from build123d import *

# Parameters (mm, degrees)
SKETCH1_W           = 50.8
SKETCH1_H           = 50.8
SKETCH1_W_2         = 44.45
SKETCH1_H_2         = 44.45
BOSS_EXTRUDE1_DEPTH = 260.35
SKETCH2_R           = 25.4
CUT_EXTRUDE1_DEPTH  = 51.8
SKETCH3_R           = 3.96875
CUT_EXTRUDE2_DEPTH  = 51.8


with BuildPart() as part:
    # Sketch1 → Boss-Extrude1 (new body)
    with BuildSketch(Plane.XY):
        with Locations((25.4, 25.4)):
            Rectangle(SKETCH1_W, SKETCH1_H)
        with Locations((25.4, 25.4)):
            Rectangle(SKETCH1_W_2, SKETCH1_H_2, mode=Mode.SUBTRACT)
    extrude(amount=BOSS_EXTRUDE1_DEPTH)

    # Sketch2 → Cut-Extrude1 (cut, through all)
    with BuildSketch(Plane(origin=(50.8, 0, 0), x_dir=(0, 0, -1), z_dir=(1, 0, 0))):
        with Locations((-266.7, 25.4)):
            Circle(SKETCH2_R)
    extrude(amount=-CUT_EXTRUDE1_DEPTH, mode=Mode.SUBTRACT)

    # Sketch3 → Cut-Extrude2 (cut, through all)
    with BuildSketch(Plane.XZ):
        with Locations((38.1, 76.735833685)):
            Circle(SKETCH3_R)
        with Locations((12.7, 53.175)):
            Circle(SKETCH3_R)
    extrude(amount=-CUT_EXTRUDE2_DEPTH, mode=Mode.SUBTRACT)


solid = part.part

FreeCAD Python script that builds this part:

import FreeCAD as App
import Part
import Sketcher
Q = App.Units.Quantity

doc = App.newDocument("Part")
body = doc.addObject("PartDesign::Body", "Body")

# Sketch on XY plane
sketch1 = body.newObject("Sketcher::SketchObject", "Sketch")
sketch1.AttachmentSupport = (doc.getObject("XY_Plane"), [""])
sketch1.MapMode = "FlatFace"
sketch1.addGeometry([
    Part.LineSegment(App.Vector(0, 50.8, 0), App.Vector(0, 0, 0)),  # 0
    Part.LineSegment(App.Vector(0, 0, 0), App.Vector(50.8, 0, 0)),  # 1
    Part.LineSegment(App.Vector(50.8, 0, 0), App.Vector(50.8, 50.8, 0)),  # 2
    Part.LineSegment(App.Vector(50.8, 50.8, 0), App.Vector(0, 50.8, 0)),  # 3
    Part.LineSegment(App.Vector(47.625, 3.175, 0), App.Vector(3.175, 3.175, 0)),  # 4
    Part.LineSegment(App.Vector(3.175, 3.175, 0), App.Vector(3.175, 47.625, 0)),  # 5
    Part.LineSegment(App.Vector(3.175, 47.625, 0), App.Vector(47.625, 47.625, 0)),  # 6
    Part.LineSegment(App.Vector(47.625, 47.625, 0), App.Vector(47.625, 3.175, 0)),  # 7
], False)
sketch1.addConstraint([
    Sketcher.Constraint("Coincident", 0, 2, 1, 1),
    Sketcher.Constraint("Coincident", 1, 2, 2, 1),
    Sketcher.Constraint("Coincident", 2, 2, 3, 1),
    Sketcher.Constraint("Coincident", 3, 2, 0, 1),
    Sketcher.Constraint("Coincident", 4, 2, 5, 1),
    Sketcher.Constraint("Coincident", 5, 2, 6, 1),
    Sketcher.Constraint("Coincident", 6, 2, 7, 1),
    Sketcher.Constraint("Coincident", 7, 2, 4, 1),
    Sketcher.Constraint("Vertical", 0),
    Sketcher.Constraint("Horizontal", 1),
    Sketcher.Constraint("Vertical", 2),
    Sketcher.Constraint("Horizontal", 3),
    Sketcher.Constraint("Horizontal", 4),
    Sketcher.Constraint("Vertical", 5),
    Sketcher.Constraint("Horizontal", 6),
    Sketcher.Constraint("Vertical", 7),
    Sketcher.Constraint("Coincident", 0, 2, -1, 1),
    Sketcher.Constraint("Equal", 3, 0),
    Sketcher.Constraint("Equal", 6, 5),
    Sketcher.Constraint("DistanceX", 1, 1, 1, 2, Q("2 in")),
    Sketcher.Constraint("DistanceX", 4, 2, 4, 1, Q("1.75 in")),
    Sketcher.Constraint("DistanceX", -1, 1, 4, 2, Q("0.125 in")),
    Sketcher.Constraint("DistanceY", -1, 1, 4, 2, Q("0.125 in")),
])
pad1 = body.newObject("PartDesign::Pad", "Pad")
pad1.Profile = sketch1
pad1.Length = Q("10.25 in")

# Sketch on YZ plane
sketch2 = body.newObject("Sketcher::SketchObject", "Sketch001")
sketch2.AttachmentSupport = (doc.getObject("YZ_Plane"), [""])
sketch2.MapMode = "FlatFace"
sketch2.AttachmentOffset = App.Placement(App.Vector(0, 0, 2 * 25.4), App.Rotation())
sketch2.addGeometry(Part.Circle(App.Vector(25.4, 266.7, 0), App.Vector(0, 0, 1), 25.4), False)
sketch2.addConstraint([
    Sketcher.Constraint("Diameter", 0, Q("2 in")),
    Sketcher.Constraint("DistanceX", -1, 1, 0, 3, Q("1 in")),
    Sketcher.Constraint("DistanceY", -1, 1, 0, 3, Q("10.5 in")),
])
pocket1 = body.newObject("PartDesign::Pocket", "Pocket")
pocket1.Profile = sketch2
pocket1.Type = "ThroughAll"

# Sketch on XZ plane
sketch3 = body.newObject("Sketcher::SketchObject", "Sketch002")
sketch3.AttachmentSupport = (doc.getObject("XZ_Plane"), [""])
sketch3.MapMode = "FlatFace"
sketch3.addGeometry([
    Part.Circle(App.Vector(38.1, 76.735834, 0), App.Vector(0, 0, 1), 3.96875),
    Part.Circle(App.Vector(12.7, 53.175, 0), App.Vector(0, 0, 1), 3.96875),
], False)
sketch3.addConstraint([
    Sketcher.Constraint("Equal", 0, 1),
    Sketcher.Constraint("Diameter", 0, Q("0.3125 in")),
    Sketcher.Constraint("DistanceX", 1, 3, 0, 3, Q("1 in")),
    Sketcher.Constraint("DistanceX", -1, 1, 0, 3, Q("1.5 in")),
    Sketcher.Constraint("DistanceY", -1, 1, 1, 3, 53.175),
    Sketcher.Constraint("DistanceY", -1, 1, 0, 3, 76.735834),
])
pocket2 = body.newObject("PartDesign::Pocket", "Pocket001")
pocket2.Profile = sketch3
pocket2.Type = "ThroughAll"

doc.recompute()
